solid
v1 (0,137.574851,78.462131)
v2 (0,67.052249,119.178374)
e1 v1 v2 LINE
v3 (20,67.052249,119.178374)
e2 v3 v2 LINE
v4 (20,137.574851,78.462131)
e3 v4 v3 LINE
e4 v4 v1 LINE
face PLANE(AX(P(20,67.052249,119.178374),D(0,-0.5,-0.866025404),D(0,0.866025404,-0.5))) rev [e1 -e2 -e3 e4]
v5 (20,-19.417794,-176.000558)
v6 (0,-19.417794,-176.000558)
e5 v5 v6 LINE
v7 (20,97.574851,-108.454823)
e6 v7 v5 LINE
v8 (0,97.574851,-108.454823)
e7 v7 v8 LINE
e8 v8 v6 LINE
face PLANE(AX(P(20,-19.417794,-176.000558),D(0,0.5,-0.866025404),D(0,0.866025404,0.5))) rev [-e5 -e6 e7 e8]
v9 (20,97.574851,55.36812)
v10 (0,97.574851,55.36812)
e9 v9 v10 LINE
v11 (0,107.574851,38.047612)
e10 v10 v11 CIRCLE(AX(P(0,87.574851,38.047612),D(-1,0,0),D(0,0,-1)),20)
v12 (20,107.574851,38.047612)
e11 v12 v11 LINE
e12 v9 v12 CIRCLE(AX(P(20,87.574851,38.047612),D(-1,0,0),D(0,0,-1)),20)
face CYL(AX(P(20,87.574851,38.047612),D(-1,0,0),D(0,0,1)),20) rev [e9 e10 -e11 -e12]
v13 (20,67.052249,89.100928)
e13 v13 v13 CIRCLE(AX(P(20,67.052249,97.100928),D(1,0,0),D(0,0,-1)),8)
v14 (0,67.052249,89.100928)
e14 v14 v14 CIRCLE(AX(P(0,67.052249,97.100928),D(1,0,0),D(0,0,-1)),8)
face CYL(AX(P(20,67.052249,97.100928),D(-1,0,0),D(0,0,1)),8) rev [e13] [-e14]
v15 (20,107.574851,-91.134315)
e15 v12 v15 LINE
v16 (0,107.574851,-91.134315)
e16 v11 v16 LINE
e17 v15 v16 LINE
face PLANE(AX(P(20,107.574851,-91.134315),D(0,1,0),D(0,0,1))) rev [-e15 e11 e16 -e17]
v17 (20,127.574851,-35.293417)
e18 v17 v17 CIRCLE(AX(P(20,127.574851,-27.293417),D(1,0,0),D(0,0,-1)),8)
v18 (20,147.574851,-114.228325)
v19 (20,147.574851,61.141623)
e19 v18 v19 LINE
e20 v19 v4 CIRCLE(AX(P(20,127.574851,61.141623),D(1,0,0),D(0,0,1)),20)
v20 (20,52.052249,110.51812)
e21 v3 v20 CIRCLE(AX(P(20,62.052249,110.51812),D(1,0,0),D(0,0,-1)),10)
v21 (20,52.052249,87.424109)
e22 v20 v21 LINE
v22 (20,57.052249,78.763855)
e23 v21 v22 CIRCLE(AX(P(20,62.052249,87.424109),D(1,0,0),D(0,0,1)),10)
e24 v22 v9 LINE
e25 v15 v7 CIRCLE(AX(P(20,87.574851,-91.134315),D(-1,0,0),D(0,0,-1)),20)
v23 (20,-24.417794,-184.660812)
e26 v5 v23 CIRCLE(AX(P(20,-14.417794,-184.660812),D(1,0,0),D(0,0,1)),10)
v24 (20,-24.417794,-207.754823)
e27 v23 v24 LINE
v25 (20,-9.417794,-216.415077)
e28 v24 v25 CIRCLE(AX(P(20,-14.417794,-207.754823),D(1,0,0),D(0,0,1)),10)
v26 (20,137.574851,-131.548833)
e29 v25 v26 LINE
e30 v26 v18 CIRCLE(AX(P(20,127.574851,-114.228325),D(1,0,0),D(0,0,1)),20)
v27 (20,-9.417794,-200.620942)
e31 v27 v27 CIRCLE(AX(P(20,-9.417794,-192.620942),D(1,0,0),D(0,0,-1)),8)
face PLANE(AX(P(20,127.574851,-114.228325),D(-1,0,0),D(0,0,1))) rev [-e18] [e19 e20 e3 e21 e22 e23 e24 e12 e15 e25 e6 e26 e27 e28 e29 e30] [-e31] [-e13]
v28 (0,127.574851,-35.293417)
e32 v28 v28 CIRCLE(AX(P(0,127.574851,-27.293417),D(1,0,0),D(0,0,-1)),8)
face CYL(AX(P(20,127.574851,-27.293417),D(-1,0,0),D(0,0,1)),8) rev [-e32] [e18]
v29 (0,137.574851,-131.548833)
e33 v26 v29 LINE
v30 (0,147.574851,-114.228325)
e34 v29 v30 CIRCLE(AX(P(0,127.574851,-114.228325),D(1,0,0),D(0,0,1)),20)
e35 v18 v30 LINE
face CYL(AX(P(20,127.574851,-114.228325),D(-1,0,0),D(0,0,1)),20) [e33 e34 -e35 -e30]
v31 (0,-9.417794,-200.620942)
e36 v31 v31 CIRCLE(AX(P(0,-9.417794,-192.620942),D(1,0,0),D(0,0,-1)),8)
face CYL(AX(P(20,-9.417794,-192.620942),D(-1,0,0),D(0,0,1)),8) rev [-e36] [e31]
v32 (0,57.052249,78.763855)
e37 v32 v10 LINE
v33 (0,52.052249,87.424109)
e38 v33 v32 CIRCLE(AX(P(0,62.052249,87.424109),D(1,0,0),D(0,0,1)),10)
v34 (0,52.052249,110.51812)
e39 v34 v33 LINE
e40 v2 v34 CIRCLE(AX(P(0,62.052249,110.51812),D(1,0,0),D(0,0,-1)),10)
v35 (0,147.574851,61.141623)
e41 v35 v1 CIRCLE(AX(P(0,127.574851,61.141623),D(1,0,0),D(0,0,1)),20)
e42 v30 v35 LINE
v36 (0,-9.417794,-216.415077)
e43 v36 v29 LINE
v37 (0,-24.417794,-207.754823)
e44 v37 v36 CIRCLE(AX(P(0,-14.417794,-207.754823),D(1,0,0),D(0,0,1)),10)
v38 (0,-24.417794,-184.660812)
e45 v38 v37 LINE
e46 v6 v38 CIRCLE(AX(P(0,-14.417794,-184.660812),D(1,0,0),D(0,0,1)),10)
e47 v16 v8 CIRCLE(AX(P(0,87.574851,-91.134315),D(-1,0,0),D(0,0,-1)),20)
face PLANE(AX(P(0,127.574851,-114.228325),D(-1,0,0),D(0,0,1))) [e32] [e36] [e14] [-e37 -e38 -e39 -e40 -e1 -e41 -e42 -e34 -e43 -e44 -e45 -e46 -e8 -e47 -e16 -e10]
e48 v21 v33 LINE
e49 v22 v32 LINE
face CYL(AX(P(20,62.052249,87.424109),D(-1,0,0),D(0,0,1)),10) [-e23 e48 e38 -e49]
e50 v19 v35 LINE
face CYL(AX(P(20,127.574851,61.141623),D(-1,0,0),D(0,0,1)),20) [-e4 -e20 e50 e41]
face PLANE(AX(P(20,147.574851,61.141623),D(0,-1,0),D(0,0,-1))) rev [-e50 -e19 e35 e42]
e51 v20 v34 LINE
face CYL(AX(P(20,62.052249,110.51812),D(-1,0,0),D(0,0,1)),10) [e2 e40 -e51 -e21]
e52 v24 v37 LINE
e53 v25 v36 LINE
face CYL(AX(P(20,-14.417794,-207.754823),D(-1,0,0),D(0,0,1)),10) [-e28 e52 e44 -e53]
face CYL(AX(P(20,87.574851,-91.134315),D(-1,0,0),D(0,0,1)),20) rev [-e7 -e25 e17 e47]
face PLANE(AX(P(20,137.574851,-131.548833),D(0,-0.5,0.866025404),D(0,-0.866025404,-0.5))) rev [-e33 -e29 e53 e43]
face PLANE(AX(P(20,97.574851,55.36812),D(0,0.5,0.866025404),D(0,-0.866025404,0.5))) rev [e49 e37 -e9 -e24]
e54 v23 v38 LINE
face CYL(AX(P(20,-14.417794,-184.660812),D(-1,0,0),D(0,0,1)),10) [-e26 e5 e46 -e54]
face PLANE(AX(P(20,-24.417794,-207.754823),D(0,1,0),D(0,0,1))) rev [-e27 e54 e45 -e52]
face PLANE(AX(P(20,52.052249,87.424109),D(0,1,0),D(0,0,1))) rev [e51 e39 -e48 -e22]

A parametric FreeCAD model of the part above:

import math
import FreeCAD as App
import Part
import Sketcher
Q = App.Units.Quantity

doc = App.newDocument("Part")
params = doc.addObject("Spreadsheet::Sheet", "Params")
for row, (alias, value) in enumerate([
    ("sketch1_diameter", "16 mm"),
    ("sketch1_radius", "10 mm"),
    ("sketch1_radius2", "20 mm"),
    ("pad1_length", "20 mm"),
], start=1):
    params.set(f"A{row}", alias)
    params.set(f"B{row}", "=" + value)
    params.setAlias(f"B{row}", alias)

body = doc.addObject("PartDesign::Body", "Body")

# Sketch on YZ plane
sketch1 = doc.addObject("Sketcher::SketchObject", "Sketch")
body.addObject(sketch1)
sketch1.AttachmentSupport = (doc.YZ_Plane, [""])
sketch1.MapMode = "FlatFace"
sketch1.addGeometry([
    Part.LineSegment(App.Vector(138, 78, 0), App.Vector(67, 119, 0)),  # 0
    Part.ArcOfCircle(Part.Circle(App.Vector(62, 111, 0), App.Vector(0, 0, 1), 10), math.radians(60), math.radians(180)),  # 1
    Part.LineSegment(App.Vector(52, 111, 0), App.Vector(52, 87, 0)),  # 2
    Part.ArcOfCircle(Part.Circle(App.Vector(62, 87, 0), App.Vector(0, 0, 1), 10), math.radians(-180), math.radians(-120)),  # 3
    Part.LineSegment(App.Vector(57, 79, 0), App.Vector(98, 55, 0)),  # 4
    Part.ArcOfCircle(Part.Circle(App.Vector(88, 38, 0), App.Vector(0, 0, 1), 20), math.radians(0), math.radians(60)),  # 5
    Part.LineSegment(App.Vector(108, 38, 0), App.Vector(108, -91, 0)),  # 6
    Part.ArcOfCircle(Part.Circle(App.Vector(88, -91, 0), App.Vector(0, 0, 1), 20), math.radians(-60), math.radians(0)),  # 7
    Part.LineSegment(App.Vector(98, -108, 0), App.Vector(-19, -176, 0)),  # 8
    Part.ArcOfCircle(Part.Circle(App.Vector(-14, -185, 0), App.Vector(0, 0, 1), 10), math.radians(120), math.radians(180)),  # 9
    Part.LineSegment(App.Vector(-24, -185, 0), App.Vector(-24, -208, 0)),  # 10
    Part.ArcOfCircle(Part.Circle(App.Vector(-14, -208, 0), App.Vector(0, 0, 1), 10), math.radians(180), math.radians(300)),  # 11
    Part.LineSegment(App.Vector(-9, -216, 0), App.Vector(138, -132, 0)),  # 12
    Part.ArcOfCircle(Part.Circle(App.Vector(128, -114, 0), App.Vector(0, 0, 1), 20), math.radians(-60), math.radians(0)),  # 13
    Part.LineSegment(App.Vector(148, -114, 0), App.Vector(148, 61, 0)),  # 14
    Part.ArcOfCircle(Part.Circle(App.Vector(128, 61, 0), App.Vector(0, 0, 1), 20), math.radians(0), math.radians(60)),  # 15
    Part.Circle(App.Vector(-9, -193, 0), App.Vector(0, 0, 1), 8),  # 16
    Part.Circle(App.Vector(67, 97, 0), App.Vector(0, 0, 1), 8),  # 17
    Part.Circle(App.Vector(128, -27, 0), App.Vector(0, 0, 1), 8),  # 18
], False)
sketch1.addConstraint([
    Sketcher.Constraint("Tangent", 0, 2, 1, 1),
    Sketcher.Constraint("Tangent", 1, 2, 2, 1),
    Sketcher.Constraint("Tangent", 2, 2, 3, 1),
    Sketcher.Constraint("Tangent", 3, 2, 4, 1),
    Sketcher.Constraint("Tangent", 4, 2, 5, 2),
    Sketcher.Constraint("Tangent", 5, 1, 6, 1),
    Sketcher.Constraint("Tangent", 6, 2, 7, 2),
    Sketcher.Constraint("Tangent", 7, 1, 8, 1),
    Sketcher.Constraint("Tangent", 8, 2, 9, 1),
    Sketcher.Constraint("Tangent", 9, 2, 10, 1),
    Sketcher.Constraint("Tangent", 10, 2, 11, 1),
    Sketcher.Constraint("Tangent", 11, 2, 12, 1),
    Sketcher.Constraint("Tangent", 12, 2, 13, 1),
    Sketcher.Constraint("Tangent", 13, 2, 14, 1),
    Sketcher.Constraint("Tangent", 14, 2, 15, 1),
    Sketcher.Constraint("Tangent", 15, 2, 0, 1),
    Sketcher.Constraint("Vertical", 2),
    Sketcher.Constraint("Vertical", 6),
    Sketcher.Constraint("Vertical", 10),
    Sketcher.Constraint("Vertical", 14),
    Sketcher.Constraint("Equal", 1, 3),
    Sketcher.Constraint("Equal", 5, 7),
    Sketcher.Constraint("Equal", 3, 9),
    Sketcher.Constraint("Equal", 9, 11),
    Sketcher.Constraint("Equal", 7, 13),
    Sketcher.Constraint("Equal", 13, 15),
    Sketcher.Constraint("Equal", 16, 17),
    Sketcher.Constraint("Equal", 17, 18),
    Sketcher.Constraint("Parallel", 0, 4),
    Sketcher.Constraint("Parallel", 8, 12),
    Sketcher.Constraint("Vertical", 15, 3, 18, 3),
    Sketcher.Constraint("Vertical", 17, 3, 0, 2),
    Sketcher.Constraint("Vertical", 4, 2, 7, 1),
    Sketcher.Constraint("Vertical", 16, 3, 11, 2),
    Sketcher.Constraint("Equal", 2, 10),
    Sketcher.Constraint("Diameter", 16, 16.0),
    Sketcher.Constraint("Radius", 1, 10.0),
    Sketcher.Constraint("Radius", 5, 20.0),
    Sketcher.Constraint("Angle", 0, Q("150 deg")),
    Sketcher.Constraint("DistanceX", 7, 3, 13, 3, 40.0),
    Sketcher.Constraint("DistanceY", 2, 2, 2, 1, 23.094011),
    Sketcher.Constraint("DistanceY", 14, 1, 14, 2, 175.369948),
    Sketcher.Constraint("DistanceY", 7, 3, 18, 3, 63.840898),
    Sketcher.Constraint("Distance", 4, 46.79147),
    Sketcher.Constraint("Distance", 8, 135.09147),
    Sketcher.Constraint("DistanceX", -1, 1, 1, 3, 62.052249),
    Sketcher.Constraint("DistanceY", -1, 1, 1, 3, 110.51812),
    Sketcher.Constraint("DistanceY", 16, 3, 9, 3, 7.96013),
    Sketcher.Constraint("DistanceY", 3, 3, 17, 3, 9.676818),
])
sketch1.setExpression("Constraints[35]", "Params.sketch1_diameter")
sketch1.setExpression("Constraints[36]", "Params.sketch1_radius")
sketch1.setExpression("Constraints[37]", "Params.sketch1_radius2")
pad1 = doc.addObject("PartDesign::Pad", "Pad")
body.addObject(pad1)
pad1.Profile = sketch1
pad1.setExpression("Length", "Params.pad1_length")

doc.recompute()
